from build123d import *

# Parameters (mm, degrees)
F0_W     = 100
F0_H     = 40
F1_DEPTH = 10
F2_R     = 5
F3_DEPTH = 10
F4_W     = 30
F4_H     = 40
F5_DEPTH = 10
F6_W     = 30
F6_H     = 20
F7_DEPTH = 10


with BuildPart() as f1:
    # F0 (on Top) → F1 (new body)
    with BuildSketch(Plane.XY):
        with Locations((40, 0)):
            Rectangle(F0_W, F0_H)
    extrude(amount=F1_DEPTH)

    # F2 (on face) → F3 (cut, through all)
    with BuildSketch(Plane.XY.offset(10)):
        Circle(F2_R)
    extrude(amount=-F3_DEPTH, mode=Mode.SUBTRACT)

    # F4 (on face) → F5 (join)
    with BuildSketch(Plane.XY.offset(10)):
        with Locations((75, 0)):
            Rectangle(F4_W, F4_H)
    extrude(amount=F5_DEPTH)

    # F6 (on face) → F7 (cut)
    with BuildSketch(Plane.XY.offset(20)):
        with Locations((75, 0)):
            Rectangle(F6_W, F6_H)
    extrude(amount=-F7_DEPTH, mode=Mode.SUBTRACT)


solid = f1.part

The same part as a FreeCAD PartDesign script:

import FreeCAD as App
import Part
import Sketcher


def add_polygon(sketch, points):
    """Adds a closed chain of lines whose ends are joined by coincident constraints."""
    first, n = sketch.GeometryCount, len(points)
    for a, b in zip(points, points[1:] + points[:1]):
        sketch.addGeometry(Part.LineSegment(App.Vector(*a, 0), App.Vector(*b, 0)), False)
    for i in range(n):
        sketch.addConstraint(Sketcher.Constraint("Coincident", first + i, 2, first + (i + 1) % n, 1))

doc = App.newDocument("Part")
body = doc.addObject("PartDesign::Body", "Body")

sketch1 = doc.addObject("Sketcher::SketchObject", "Sketch")
body.addObject(sketch1)
sketch1.AttachmentSupport = (doc.XY_Plane, [""])
sketch1.MapMode = "FlatFace"
add_polygon(sketch1, [(-10, 20), (-10, -20), (90, -20), (90, 20)])
sketch1.addConstraint(Sketcher.Constraint("Vertical", 0))
sketch1.addConstraint(Sketcher.Constraint("Horizontal", 1))
sketch1.addConstraint(Sketcher.Constraint("Vertical", 2))
sketch1.addConstraint(Sketcher.Constraint("Horizontal", 3))
sketch1.addConstraint(Sketcher.Constraint("DistanceX", 1, 1, 1, 2, 100.0))
sketch1.addConstraint(Sketcher.Constraint("DistanceY", 0, 2, 0, 1, 40.0))
sketch1.addConstraint(Sketcher.Constraint("DistanceX", 0, 2, -1, 1, 10.0))
sketch1.addConstraint(Sketcher.Constraint("DistanceY", 0, 2, -1, 1, 20.0))
pad1 = doc.addObject("PartDesign::Pad", "Pad")
body.addObject(pad1)
pad1.Profile = sketch1
pad1.Length = 10

sketch2 = doc.addObject("Sketcher::SketchObject", "Sketch001")
body.addObject(sketch2)
sketch2.AttachmentSupport = (doc.XY_Plane, [""])
sketch2.MapMode = "FlatFace"
sketch2.AttachmentOffset = App.Placement(App.Vector(0, 0, 10), App.Rotation())
sketch2.addGeometry(Part.Circle(App.Vector(0, 0, 0), App.Vector(0, 0, 1), 5), False)
sketch2.addConstraint(Sketcher.Constraint("Coincident", 0, 3, -1, 1))
sketch2.addConstraint(Sketcher.Constraint("Diameter", 0, 10.0))
pocket1 = doc.addObject("PartDesign::Pocket", "Pocket")
body.addObject(pocket1)
pocket1.Profile = sketch2
pocket1.Type = "ThroughAll"

sketch3 = doc.addObject("Sketcher::SketchObject", "Sketch002")
body.addObject(sketch3)
sketch3.AttachmentSupport = (doc.XY_Plane, [""])
sketch3.MapMode = "FlatFace"
sketch3.AttachmentOffset = App.Placement(App.Vector(0, 0, 10), App.Rotation())
add_polygon(sketch3, [(60, 20), (60, -20), (90, -20), (90, 20)])
sketch3.addConstraint(Sketcher.Constraint("Vertical", 0))
sketch3.addConstraint(Sketcher.Constraint("Horizontal", 1))
sketch3.addConstraint(Sketcher.Constraint("Vertical", 2))
sketch3.addConstraint(Sketcher.Constraint("Horizontal", 3))
sketch3.addConstraint(Sketcher.Constraint("DistanceX", 1, 1, 1, 2, 30.0))
sketch3.addConstraint(Sketcher.Constraint("DistanceY", 0, 2, 0, 1, 40.0))
sketch3.addConstraint(Sketcher.Constraint("DistanceX", -1, 1, 0, 2, 60.0))
sketch3.addConstraint(Sketcher.Constraint("DistanceY", 0, 2, -1, 1, 20.0))
pad2 = doc.addObject("PartDesign::Pad", "Pad001")
body.addObject(pad2)
pad2.Profile = sketch3
pad2.Length = 10

sketch4 = doc.addObject("Sketcher::SketchObject", "Sketch003")
body.addObject(sketch4)
sketch4.AttachmentSupport = (doc.XY_Plane, [""])
sketch4.MapMode = "FlatFace"
sketch4.AttachmentOffset = App.Placement(App.Vector(0, 0, 20), App.Rotation())
add_polygon(sketch4, [(60, 10), (60, -10), (90, -10), (90, 10)])
sketch4.addConstraint(Sketcher.Constraint("Vertical", 0))
sketch4.addConstraint(Sketcher.Constraint("Horizontal", 1))
sketch4.addConstraint(Sketcher.Constraint("Vertical", 2))
sketch4.addConstraint(Sketcher.Constraint("Horizontal", 3))
sketch4.addConstraint(Sketcher.Constraint("DistanceX", 1, 1, 1, 2, 30.0))
sketch4.addConstraint(Sketcher.Constraint("DistanceY", 0, 2, 0, 1, 20.0))
sketch4.addConstraint(Sketcher.Constraint("DistanceX", -1, 1, 0, 2, 60.0))
sketch4.addConstraint(Sketcher.Constraint("DistanceY", 0, 2, -1, 1, 10.0))
pocket2 = doc.addObject("PartDesign::Pocket", "Pocket001")
body.addObject(pocket2)
pocket2.Profile = sketch4
pocket2.Length = 10

doc.recompute()
